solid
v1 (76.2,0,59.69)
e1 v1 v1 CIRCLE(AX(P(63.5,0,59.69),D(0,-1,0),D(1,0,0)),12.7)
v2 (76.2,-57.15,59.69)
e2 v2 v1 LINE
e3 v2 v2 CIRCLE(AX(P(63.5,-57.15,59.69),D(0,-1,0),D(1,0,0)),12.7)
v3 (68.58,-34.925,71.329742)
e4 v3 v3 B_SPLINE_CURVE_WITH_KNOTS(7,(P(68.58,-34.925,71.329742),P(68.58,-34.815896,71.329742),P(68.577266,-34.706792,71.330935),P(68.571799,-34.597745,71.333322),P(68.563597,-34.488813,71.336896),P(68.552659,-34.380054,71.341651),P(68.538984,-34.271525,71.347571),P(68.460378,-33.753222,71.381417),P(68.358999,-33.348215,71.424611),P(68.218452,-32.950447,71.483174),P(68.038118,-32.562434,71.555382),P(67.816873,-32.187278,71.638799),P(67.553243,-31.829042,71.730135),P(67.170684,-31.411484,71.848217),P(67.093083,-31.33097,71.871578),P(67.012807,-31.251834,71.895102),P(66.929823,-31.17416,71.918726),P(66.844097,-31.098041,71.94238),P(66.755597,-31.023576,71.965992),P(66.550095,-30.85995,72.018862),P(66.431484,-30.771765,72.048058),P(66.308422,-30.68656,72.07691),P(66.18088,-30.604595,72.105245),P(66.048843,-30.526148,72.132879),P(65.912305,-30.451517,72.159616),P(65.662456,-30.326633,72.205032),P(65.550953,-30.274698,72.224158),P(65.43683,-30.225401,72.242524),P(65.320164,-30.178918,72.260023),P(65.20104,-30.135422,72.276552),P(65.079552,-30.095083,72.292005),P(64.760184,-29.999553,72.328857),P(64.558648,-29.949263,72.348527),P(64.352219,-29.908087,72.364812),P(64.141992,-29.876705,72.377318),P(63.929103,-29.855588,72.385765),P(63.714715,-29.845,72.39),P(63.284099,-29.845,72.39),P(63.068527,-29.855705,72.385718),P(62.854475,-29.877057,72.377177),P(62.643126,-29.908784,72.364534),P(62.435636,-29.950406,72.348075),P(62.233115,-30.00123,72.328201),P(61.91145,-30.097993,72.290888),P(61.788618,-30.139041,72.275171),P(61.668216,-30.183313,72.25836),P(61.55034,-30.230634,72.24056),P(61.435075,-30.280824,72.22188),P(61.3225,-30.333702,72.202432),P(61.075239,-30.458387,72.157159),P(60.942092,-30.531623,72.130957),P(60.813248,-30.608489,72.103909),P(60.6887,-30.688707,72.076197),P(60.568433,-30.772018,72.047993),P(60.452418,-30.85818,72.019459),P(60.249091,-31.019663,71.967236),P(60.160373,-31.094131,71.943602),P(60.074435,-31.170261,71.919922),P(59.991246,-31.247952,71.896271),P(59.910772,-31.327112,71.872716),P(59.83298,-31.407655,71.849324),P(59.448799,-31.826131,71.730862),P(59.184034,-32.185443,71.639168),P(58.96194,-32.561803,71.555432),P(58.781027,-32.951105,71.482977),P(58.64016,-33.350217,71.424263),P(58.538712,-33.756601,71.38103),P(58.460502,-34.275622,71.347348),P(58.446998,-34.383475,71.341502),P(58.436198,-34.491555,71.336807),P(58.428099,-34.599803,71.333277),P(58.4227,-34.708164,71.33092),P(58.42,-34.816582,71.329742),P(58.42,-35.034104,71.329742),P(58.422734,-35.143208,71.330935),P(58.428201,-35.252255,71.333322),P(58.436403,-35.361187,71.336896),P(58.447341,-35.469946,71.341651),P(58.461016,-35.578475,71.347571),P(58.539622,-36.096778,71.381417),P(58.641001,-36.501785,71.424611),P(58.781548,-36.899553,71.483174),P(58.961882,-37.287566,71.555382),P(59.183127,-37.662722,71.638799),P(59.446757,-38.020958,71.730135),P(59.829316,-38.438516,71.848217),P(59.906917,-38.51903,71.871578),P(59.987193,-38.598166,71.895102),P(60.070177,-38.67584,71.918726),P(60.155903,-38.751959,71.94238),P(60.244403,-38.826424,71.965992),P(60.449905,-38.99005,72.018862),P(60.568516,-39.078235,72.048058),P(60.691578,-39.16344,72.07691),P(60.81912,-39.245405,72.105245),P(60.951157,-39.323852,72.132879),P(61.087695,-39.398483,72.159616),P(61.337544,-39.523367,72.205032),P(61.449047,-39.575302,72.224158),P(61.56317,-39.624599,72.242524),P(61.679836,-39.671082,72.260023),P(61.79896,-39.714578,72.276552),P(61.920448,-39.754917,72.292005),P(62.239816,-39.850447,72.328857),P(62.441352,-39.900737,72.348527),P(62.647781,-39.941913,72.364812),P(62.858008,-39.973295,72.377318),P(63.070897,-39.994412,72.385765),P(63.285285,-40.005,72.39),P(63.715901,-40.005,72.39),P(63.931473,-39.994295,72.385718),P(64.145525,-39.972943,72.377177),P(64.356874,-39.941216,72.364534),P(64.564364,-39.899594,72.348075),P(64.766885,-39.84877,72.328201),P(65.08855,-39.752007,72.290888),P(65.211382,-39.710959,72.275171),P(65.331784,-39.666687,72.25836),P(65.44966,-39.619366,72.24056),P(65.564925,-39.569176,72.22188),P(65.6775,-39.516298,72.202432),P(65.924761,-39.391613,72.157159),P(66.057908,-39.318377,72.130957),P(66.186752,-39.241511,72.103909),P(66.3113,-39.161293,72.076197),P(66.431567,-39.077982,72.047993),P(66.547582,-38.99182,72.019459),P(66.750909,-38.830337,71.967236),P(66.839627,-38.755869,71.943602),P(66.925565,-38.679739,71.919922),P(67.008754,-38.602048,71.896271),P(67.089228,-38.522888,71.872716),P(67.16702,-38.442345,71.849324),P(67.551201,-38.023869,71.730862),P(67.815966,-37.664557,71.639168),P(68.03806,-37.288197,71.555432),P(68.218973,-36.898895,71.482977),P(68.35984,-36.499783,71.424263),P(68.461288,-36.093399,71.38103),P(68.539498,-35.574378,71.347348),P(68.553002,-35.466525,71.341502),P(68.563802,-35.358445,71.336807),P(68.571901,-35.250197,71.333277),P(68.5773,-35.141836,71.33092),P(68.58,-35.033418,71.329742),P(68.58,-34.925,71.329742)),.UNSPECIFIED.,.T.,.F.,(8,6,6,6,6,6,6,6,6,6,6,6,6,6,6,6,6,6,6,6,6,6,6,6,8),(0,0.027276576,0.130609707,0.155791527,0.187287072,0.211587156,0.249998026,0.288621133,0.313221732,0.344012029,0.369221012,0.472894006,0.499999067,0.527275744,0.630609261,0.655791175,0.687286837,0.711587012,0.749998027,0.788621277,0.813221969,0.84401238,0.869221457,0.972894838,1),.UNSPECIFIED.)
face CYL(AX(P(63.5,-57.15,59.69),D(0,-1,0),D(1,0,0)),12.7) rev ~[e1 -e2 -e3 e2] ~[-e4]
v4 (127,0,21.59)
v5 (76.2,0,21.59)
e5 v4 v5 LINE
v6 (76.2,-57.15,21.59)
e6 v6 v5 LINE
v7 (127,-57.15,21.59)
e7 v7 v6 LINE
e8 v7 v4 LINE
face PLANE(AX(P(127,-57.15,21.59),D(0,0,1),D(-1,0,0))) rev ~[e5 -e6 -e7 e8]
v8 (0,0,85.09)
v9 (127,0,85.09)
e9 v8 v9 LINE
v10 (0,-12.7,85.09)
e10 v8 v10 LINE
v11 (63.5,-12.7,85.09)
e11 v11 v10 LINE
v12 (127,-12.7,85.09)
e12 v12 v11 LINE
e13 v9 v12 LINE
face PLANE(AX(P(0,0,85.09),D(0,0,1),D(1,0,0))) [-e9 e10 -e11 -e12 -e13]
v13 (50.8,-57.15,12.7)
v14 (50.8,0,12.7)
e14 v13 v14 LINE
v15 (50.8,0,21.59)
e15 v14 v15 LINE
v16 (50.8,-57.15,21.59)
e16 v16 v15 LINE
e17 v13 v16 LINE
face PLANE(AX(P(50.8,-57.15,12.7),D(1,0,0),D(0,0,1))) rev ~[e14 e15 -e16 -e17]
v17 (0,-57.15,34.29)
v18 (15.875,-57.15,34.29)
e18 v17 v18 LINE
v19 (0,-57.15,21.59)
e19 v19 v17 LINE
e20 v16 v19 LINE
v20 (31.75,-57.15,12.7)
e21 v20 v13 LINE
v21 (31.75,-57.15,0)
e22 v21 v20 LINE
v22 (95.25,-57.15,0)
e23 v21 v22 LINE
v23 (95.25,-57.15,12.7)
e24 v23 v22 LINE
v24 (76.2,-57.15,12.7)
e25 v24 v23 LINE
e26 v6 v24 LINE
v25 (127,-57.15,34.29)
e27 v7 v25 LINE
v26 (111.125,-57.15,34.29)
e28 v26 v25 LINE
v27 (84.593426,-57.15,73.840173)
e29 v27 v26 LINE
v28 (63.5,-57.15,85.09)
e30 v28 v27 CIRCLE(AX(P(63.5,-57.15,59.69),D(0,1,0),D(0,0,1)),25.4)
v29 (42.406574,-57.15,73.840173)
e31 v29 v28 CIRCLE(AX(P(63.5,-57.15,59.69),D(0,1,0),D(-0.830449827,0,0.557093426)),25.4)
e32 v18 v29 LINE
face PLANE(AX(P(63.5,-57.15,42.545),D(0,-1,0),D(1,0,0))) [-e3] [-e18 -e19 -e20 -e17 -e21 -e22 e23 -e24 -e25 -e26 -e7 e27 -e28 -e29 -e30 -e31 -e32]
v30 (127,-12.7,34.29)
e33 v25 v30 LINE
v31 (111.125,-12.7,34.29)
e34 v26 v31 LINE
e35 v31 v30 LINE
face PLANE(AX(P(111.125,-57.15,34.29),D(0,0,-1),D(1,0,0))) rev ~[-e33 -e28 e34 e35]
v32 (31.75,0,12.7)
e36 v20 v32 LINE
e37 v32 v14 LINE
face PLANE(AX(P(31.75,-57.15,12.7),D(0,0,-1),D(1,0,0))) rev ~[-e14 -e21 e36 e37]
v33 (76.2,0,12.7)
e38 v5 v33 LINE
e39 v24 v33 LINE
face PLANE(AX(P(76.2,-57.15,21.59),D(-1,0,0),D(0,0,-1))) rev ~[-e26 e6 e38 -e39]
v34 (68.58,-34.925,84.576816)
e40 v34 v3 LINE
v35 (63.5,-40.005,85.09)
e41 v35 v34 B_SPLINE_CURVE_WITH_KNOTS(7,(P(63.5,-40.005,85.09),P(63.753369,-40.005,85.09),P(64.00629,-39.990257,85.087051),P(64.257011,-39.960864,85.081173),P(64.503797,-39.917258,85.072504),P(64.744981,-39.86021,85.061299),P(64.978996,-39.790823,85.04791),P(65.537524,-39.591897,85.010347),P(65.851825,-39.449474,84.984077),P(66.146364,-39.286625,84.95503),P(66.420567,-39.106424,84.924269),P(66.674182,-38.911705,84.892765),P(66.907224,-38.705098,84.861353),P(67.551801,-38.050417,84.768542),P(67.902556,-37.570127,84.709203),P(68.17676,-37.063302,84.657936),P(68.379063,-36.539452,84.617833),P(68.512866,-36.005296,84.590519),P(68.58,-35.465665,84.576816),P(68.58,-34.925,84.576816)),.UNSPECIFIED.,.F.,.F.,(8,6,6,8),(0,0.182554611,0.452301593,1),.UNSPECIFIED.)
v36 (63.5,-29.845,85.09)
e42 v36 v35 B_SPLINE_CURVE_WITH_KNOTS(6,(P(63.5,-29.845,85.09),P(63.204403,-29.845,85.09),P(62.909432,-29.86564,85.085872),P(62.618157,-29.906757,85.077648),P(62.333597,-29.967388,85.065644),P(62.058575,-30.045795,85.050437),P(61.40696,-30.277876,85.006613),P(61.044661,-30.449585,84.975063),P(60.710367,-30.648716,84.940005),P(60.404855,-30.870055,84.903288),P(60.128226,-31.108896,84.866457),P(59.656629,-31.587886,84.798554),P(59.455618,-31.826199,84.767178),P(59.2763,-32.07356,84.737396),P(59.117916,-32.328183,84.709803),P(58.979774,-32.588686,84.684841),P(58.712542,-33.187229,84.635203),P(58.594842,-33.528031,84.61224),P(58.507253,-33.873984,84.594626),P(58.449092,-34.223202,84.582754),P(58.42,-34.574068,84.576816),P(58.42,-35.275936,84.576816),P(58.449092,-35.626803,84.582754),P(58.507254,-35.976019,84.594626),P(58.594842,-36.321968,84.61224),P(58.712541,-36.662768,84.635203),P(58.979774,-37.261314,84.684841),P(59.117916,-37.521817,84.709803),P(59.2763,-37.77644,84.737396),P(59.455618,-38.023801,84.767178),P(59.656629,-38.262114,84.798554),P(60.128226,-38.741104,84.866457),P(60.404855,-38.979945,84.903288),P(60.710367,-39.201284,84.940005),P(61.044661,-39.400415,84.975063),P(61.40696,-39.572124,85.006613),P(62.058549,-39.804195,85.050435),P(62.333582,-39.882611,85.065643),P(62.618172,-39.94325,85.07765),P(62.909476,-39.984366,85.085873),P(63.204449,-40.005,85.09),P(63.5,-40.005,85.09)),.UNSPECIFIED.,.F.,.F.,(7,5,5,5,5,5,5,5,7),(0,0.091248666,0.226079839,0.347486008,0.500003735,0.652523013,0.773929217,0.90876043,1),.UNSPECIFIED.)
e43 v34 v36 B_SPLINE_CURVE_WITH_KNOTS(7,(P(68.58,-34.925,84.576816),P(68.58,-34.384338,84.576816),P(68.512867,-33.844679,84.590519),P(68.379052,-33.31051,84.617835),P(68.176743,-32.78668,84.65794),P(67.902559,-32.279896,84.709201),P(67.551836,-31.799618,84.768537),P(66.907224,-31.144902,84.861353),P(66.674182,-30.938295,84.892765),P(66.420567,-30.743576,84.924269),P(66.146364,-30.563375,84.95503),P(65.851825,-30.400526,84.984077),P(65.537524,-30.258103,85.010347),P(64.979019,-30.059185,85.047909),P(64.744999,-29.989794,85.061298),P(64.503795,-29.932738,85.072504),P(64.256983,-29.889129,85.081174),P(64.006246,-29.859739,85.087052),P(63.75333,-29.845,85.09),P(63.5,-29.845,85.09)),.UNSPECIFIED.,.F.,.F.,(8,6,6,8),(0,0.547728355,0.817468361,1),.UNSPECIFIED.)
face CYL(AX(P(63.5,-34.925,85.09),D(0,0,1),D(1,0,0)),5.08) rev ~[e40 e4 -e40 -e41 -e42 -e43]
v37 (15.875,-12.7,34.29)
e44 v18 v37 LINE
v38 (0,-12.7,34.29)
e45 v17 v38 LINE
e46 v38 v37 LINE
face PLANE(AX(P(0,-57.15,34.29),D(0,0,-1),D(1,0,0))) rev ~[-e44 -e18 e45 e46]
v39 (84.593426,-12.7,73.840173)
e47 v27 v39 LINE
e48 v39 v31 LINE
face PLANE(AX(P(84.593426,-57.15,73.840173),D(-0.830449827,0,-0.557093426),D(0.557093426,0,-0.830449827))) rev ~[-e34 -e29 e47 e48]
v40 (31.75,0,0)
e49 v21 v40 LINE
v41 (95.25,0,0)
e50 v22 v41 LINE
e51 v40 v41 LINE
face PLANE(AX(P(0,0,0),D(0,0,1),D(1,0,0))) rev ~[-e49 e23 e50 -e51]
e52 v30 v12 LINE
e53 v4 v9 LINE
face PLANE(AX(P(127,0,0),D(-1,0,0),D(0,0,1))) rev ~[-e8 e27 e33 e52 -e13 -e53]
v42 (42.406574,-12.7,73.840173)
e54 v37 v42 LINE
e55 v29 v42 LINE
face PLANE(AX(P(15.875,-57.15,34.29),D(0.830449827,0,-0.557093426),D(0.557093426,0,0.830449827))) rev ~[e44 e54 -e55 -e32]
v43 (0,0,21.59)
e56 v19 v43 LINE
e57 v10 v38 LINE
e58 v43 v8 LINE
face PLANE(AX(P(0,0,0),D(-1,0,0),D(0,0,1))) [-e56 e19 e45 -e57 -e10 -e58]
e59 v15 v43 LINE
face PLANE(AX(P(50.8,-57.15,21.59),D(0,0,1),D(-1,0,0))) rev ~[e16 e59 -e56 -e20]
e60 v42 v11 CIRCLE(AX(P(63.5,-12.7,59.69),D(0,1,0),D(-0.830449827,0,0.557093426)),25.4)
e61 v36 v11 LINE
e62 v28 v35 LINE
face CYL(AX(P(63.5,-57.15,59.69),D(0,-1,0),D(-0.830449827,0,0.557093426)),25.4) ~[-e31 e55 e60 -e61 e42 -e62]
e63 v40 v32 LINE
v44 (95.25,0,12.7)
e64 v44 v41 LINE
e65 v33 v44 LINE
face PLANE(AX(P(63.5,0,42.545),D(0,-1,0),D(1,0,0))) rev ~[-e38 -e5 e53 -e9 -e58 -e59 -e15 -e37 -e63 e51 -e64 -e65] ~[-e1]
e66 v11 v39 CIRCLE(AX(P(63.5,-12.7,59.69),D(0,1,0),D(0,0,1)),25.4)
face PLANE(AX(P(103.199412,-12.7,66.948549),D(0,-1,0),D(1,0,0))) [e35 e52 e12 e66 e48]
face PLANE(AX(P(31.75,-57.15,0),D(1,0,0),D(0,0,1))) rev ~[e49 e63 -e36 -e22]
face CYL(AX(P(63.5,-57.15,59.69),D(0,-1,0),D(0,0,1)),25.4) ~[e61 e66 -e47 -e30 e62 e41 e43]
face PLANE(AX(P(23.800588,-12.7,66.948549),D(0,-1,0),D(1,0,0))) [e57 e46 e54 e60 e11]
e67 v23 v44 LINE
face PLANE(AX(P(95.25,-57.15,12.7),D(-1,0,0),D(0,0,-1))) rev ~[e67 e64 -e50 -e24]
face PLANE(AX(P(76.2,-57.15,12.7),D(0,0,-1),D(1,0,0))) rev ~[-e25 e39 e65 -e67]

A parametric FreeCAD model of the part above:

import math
import FreeCAD as App
import Part
import Sketcher
Q = App.Units.Quantity

doc = App.newDocument("Part")
body = doc.addObject("PartDesign::Body", "Body")

# Sketch on XZ plane
sketch1 = body.newObject("Sketcher::SketchObject", "Sketch")
sketch1.AttachmentSupport = (doc.getObject("XZ_Plane"), [""])
sketch1.MapMode = "FlatFace"
sketch1.addGeometry([
    Part.LineSegment(App.Vector(0, 85, 0), App.Vector(0, 0, 0)),
    Part.LineSegment(App.Vector(0, 0, 0), App.Vector(127, 0, 0)),
    Part.LineSegment(App.Vector(127, 0, 0), App.Vector(127, 85, 0)),
    Part.LineSegment(App.Vector(127, 85, 0), App.Vector(0, 85, 0)),
], False)
sketch1.addConstraint([
    Sketcher.Constraint("Coincident", 0, 2, 1, 1),
    Sketcher.Constraint("Coincident", 1, 2, 2, 1),
    Sketcher.Constraint("Coincident", 2, 2, 3, 1),
    Sketcher.Constraint("Coincident", 3, 2, 0, 1),
    Sketcher.Constraint("Vertical", 0),
    Sketcher.Constraint("Horizontal", 1),
    Sketcher.Constraint("Vertical", 2),
    Sketcher.Constraint("Horizontal", 3),
    Sketcher.Constraint("Coincident", 0, 2, -1, 1),
    Sketcher.Constraint("DistanceX", 1, 1, 1, 2, Q("5 in")),
    Sketcher.Constraint("DistanceY", 0, 2, 0, 1, Q("3.35 in")),
])
pad1 = body.newObject("PartDesign::Pad", "Pad")
pad1.Profile = sketch1
pad1.Length = Q("2.25 in")

# Sketch on XZ plane
sketch2 = body.newObject("Sketcher::SketchObject", "Sketch001")
sketch2.AttachmentSupport = (doc.getObject("XZ_Plane"), [""])
sketch2.MapMode = "FlatFace"
sketch2.AttachmentOffset = App.Placement(App.Vector(0, 0, 2.25 * 25.4), App.Rotation())
sketch2.addGeometry([
    Part.LineSegment(App.Vector(0, 0, 0), App.Vector(32, 0, 0)),  # 0
    Part.LineSegment(App.Vector(32, 0, 0), App.Vector(32, 13, 0)),  # 1
    Part.LineSegment(App.Vector(32, 13, 0), App.Vector(51, 13, 0)),  # 2
    Part.LineSegment(App.Vector(51, 13, 0), App.Vector(51, 22, 0)),  # 3
    Part.LineSegment(App.Vector(51, 22, 0), App.Vector(0, 22, 0)),  # 4
    Part.LineSegment(App.Vector(0, 22, 0), App.Vector(0, 0, 0)),  # 5
    Part.LineSegment(App.Vector(95, 13, 0), App.Vector(95, 0, 0)),  # 6
    Part.LineSegment(App.Vector(95, 0, 0), App.Vector(127, 0, 0)),  # 7
    Part.LineSegment(App.Vector(127, 0, 0), App.Vector(127, 22, 0)),  # 8
    Part.LineSegment(App.Vector(127, 22, 0), App.Vector(76, 22, 0)),  # 9
    Part.LineSegment(App.Vector(76, 22, 0), App.Vector(76, 13, 0)),  # 10
    Part.LineSegment(App.Vector(76, 13, 0), App.Vector(95, 13, 0)),  # 11
    Part.Circle(App.Vector(64, 60, 0), App.Vector(0, 0, 1), 13),  # 12
], False)
sketch2.addConstraint([
    Sketcher.Constraint("Coincident", 0, 2, 1, 1),
    Sketcher.Constraint("Coincident", 1, 2, 2, 1),
    Sketcher.Constraint("Coincident", 2, 2, 3, 1),
    Sketcher.Constraint("Coincident", 3, 2, 4, 1),
    Sketcher.Constraint("Coincident", 4, 2, 5, 1),
    Sketcher.Constraint("Coincident", 5, 2, 0, 1),
    Sketcher.Constraint("Coincident", 6, 2, 7, 1),
    Sketcher.Constraint("Coincident", 7, 2, 8, 1),
    Sketcher.Constraint("Coincident", 8, 2, 9, 1),
    Sketcher.Constraint("Coincident", 9, 2, 10, 1),
    Sketcher.Constraint("Coincident", 10, 2, 11, 1),
    Sketcher.Constraint("Coincident", 11, 2, 6, 1),
    Sketcher.Constraint("Horizontal", 0),
    Sketcher.Constraint("Vertical", 1),
    Sketcher.Constraint("Horizontal", 2),
    Sketcher.Constraint("Vertical", 3),
    Sketcher.Constraint("Horizontal", 4),
    Sketcher.Constraint("Vertical", 5),
    Sketcher.Constraint("Vertical", 6),
    Sketcher.Constraint("Horizontal", 7),
    Sketcher.Constraint("Vertical", 8),
    Sketcher.Constraint("Horizontal", 9),
    Sketcher.Constraint("Vertical", 10),
    Sketcher.Constraint("Horizontal", 11),
    Sketcher.Constraint("Coincident", 5, 2, -1, 1),
    Sketcher.Constraint("PointOnObject", 6, 2, -1),
    Sketcher.Constraint("Horizontal", 4, 2, 8, 2),
    Sketcher.Constraint("Horizontal", 2, 2, 10, 2),
    Sketcher.Constraint("Equal", 0, 7),
    Sketcher.Constraint("Equal", 4, 9),
    Sketcher.Constraint("Diameter", 12, Q("1 in")),
    Sketcher.Constraint("DistanceX", 4, 2, 4, 1, Q("2 in")),
    Sketcher.Constraint("DistanceY", 1, 1, 1, 2, Q("0.5 in")),
    Sketcher.Constraint("DistanceX", -1, 1, 7, 2, Q("5 in")),
    Sketcher.Constraint("DistanceX", 0, 1, 0, 2, Q("1.25 in")),
    Sketcher.Constraint("DistanceY", 3, 1, 3, 2, Q("0.35 in")),
    Sketcher.Constraint("DistanceX", -1, 1, 12, 3, Q("2.5 in")),
    Sketcher.Constraint("DistanceY", 3, 2, 12, 3, Q("1.5 in")),
])
pocket1 = body.newObject("PartDesign::Pocket", "Pocket")
pocket1.Profile = sketch2
pocket1.Type = "ThroughAll"

# Sketch on XZ plane
sketch3 = body.newObject("Sketcher::SketchObject", "Sketch002")
sketch3.AttachmentSupport = (doc.getObject("XZ_Plane"), [""])
sketch3.MapMode = "FlatFace"
sketch3.AttachmentOffset = App.Placement(App.Vector(0, 0, 2.25 * 25.4), App.Rotation())
sketch3.addGeometry([
    Part.LineSegment(App.Vector(111, 34, 0), App.Vector(127, 34, 0)),  # 0
    Part.LineSegment(App.Vector(127, 34, 0), App.Vector(127, 85, 0)),  # 1
    Part.LineSegment(App.Vector(127, 85, 0), App.Vector(64, 85, 0)),  # 2
    Part.ArcOfCircle(Part.Circle(App.Vector(64, 60, 0), App.Vector(0, 0, 1), 25), math.radians(34), math.radians(90)),  # 3
    Part.LineSegment(App.Vector(85, 74, 0), App.Vector(111, 34, 0)),  # 4
    Part.LineSegment(App.Vector(0, 85, 0), App.Vector(0, 34, 0)),  # 5
    Part.LineSegment(App.Vector(0, 34, 0), App.Vector(16, 34, 0)),  # 6
    Part.LineSegment(App.Vector(16, 34, 0), App.Vector(42, 74, 0)),  # 7
    Part.ArcOfCircle(Part.Circle(App.Vector(64, 60, 0), App.Vector(0, 0, 1), 25), math.radians(90), math.radians(146)),  # 8
    Part.LineSegment(App.Vector(64, 85, 0), App.Vector(0, 85, 0)),  # 9
], False)
sketch3.addConstraint([
    Sketcher.Constraint("Coincident", 0, 2, 1, 1),
    Sketcher.Constraint("Coincident", 1, 2, 2, 1),
    Sketcher.Constraint("Tangent", 2, 2, 3, 2),
    Sketcher.Constraint("Tangent", 3, 1, 4, 1),
    Sketcher.Constraint("Coincident", 4, 2, 0, 1),
    Sketcher.Constraint("Coincident", 5, 2, 6, 1),
    Sketcher.Constraint("Coincident", 6, 2, 7, 1),
    Sketcher.Constraint("Tangent", 7, 2, 8, 2),
    Sketcher.Constraint("Tangent", 8, 1, 9, 1),
    Sketcher.Constraint("Coincident", 9, 2, 5, 1),
    Sketcher.Constraint("Horizontal", 0),
    Sketcher.Constraint("Vertical", 1),
    Sketcher.Constraint("Horizontal", 2),
    Sketcher.Constraint("Vertical", 5),
    Sketcher.Constraint("Horizontal", 6),
    Sketcher.Constraint("Horizontal", 9),
    Sketcher.Constraint("Coincident", 8, 3, 3, 3),
    Sketcher.Constraint("Equal", 3, 8),
    Sketcher.Constraint("PointOnObject", 5, 2, -2),
    Sketcher.Constraint("Horizontal", 4, 2, 5, 2),
    Sketcher.Constraint("Horizontal", 3, 1, 7, 2),
    Sketcher.Constraint("Equal", 0, 6),
    Sketcher.Constraint("Radius", 3, Q("1 in")),
    Sketcher.Constraint("DistanceY", 1, 1, 1, 2, Q("2 in")),
    Sketcher.Constraint("DistanceX", 2, 2, 2, 1, Q("2.5 in")),
    Sketcher.Constraint("DistanceX", 0, 1, 0, 2, Q("0.625 in")),
    Sketcher.Constraint("DistanceY", -1, 1, 3, 3, Q("2.35 in")),
])
pocket2 = body.newObject("PartDesign::Pocket", "Pocket001")
pocket2.Profile = sketch3
pocket2.Length = Q("1.75 in")

# Sketch on XY plane
sketch4 = body.newObject("Sketcher::SketchObject", "Sketch003")
sketch4.AttachmentSupport = (doc.getObject("XY_Plane"), [""])
sketch4.MapMode = "FlatFace"
sketch4.AttachmentOffset = App.Placement(App.Vector(0, 0, 3.35 * 25.4), App.Rotation())
sketch4.addGeometry(Part.Circle(App.Vector(64, -35, 0), App.Vector(0, 0, 1), 5), False)
sketch4.addConstraint([
    Sketcher.Constraint("Diameter", 0, Q("0.4 in")),
    Sketcher.Constraint("DistanceX", -1, 1, 0, 3, Q("2.5 in")),
    Sketcher.Constraint("DistanceY", 0, 3, -1, 1, Q("1.375 in")),
])
pocket3 = body.newObject("PartDesign::Pocket", "Pocket002")
pocket3.Profile = sketch4
pocket3.Length = 13.761258

doc.recompute()
